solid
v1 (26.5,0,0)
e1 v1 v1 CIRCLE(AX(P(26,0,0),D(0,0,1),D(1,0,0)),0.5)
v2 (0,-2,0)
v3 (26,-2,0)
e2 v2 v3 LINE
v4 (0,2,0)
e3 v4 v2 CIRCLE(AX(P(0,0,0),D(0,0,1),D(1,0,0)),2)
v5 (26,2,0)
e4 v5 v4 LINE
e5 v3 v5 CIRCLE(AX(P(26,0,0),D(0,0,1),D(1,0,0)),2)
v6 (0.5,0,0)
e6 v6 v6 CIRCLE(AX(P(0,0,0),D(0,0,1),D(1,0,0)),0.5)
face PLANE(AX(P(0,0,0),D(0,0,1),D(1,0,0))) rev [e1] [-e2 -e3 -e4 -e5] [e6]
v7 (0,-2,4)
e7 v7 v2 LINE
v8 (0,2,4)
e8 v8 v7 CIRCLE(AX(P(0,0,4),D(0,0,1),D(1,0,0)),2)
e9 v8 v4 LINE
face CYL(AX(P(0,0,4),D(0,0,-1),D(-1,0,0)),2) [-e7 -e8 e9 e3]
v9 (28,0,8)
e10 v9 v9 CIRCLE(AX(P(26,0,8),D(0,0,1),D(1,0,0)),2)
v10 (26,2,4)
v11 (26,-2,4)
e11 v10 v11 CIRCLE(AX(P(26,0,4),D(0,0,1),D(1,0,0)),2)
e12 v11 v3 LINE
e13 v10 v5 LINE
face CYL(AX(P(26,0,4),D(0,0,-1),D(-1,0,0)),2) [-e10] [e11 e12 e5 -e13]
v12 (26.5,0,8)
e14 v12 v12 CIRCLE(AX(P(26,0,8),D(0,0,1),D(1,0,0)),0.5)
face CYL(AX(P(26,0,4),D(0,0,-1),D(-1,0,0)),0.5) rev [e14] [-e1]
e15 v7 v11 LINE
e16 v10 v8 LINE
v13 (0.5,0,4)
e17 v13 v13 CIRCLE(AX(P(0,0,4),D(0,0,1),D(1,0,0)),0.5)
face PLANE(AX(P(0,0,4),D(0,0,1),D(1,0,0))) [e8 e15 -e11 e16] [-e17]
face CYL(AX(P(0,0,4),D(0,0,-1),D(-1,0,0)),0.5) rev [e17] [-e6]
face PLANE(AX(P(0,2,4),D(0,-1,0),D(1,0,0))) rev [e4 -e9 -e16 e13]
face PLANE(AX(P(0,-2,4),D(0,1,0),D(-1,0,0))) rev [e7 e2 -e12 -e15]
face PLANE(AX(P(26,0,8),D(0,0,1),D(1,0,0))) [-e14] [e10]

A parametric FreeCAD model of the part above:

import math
import FreeCAD as App
import Part
import Sketcher
from FreeCAD import Vector

doc = App.newDocument("Part")
body = doc.addObject("PartDesign::Body", "Body")

sketch1 = doc.addObject("Sketcher::SketchObject", "Sketch")
body.addObject(sketch1)
sketch1.AttachmentSupport = (doc.XY_Plane, [""])
sketch1.MapMode = "FlatFace"
sketch1.addGeometry([
    Part.LineSegment(Vector(26, 2, 0), Vector(0, 2, 0)),
    Part.ArcOfCircle(Part.Circle(Vector(0, 0, 0), Vector(0, 0, 1), 2), math.radians(90), math.radians(270)),
    Part.LineSegment(Vector(0, -2, 0), Vector(26, -2, 0)),
    Part.ArcOfCircle(Part.Circle(Vector(26, 0, 0), Vector(0, 0, 1), 2), math.radians(-90), math.radians(90)),
    Part.Circle(Vector(26, 0, 0), Vector(0, 0, 1), 0.5),
    Part.Circle(Vector(0, 0, 0), Vector(0, 0, 1), 0.5),
], False)
sketch1.addConstraint([
    Sketcher.Constraint("Tangent", 0, 2, 1, 1),
    Sketcher.Constraint("Tangent", 1, 2, 2, 1),
    Sketcher.Constraint("Tangent", 2, 2, 3, 1),
    Sketcher.Constraint("Tangent", 3, 2, 0, 1),
    Sketcher.Constraint("Horizontal", 0),
    Sketcher.Constraint("Horizontal", 2),
    Sketcher.Constraint("Coincident", 1, 3, -1, 1),
    Sketcher.Constraint("Coincident", 5, 3, -1, 1),
    Sketcher.Constraint("Coincident", 4, 3, 3, 3),
    Sketcher.Constraint("Equal", 4, 5),
    Sketcher.Constraint("Diameter", 4, 1.0),
    Sketcher.Constraint("Radius", 1, 2.0),
    Sketcher.Constraint("DistanceX", 0, 2, 0, 1, 26.0),
])
pad1 = doc.addObject("PartDesign::Pad", "Pad")
body.addObject(pad1)
pad1.Profile = sketch1
pad1.Length = 4

sketch2 = doc.addObject("Sketcher::SketchObject", "Sketch001")
body.addObject(sketch2)
sketch2.AttachmentSupport = (doc.XY_Plane, [""])
sketch2.MapMode = "FlatFace"
sketch2.AttachmentOffset = App.Placement(Vector(0, 0, 4), App.Rotation())
sketch2.addGeometry([
    Part.Circle(Vector(26, 0, 0), Vector(0, 0, 1), 2),
    Part.Circle(Vector(26, 0, 0), Vector(0, 0, 1), 0.5),
], False)
sketch2.addConstraint([
    Sketcher.Constraint("Coincident", 1, 3, 0, 3),
    Sketcher.Constraint("PointOnObject", 0, 3, -1),
    Sketcher.Constraint("Diameter", 0, 4.0),
    Sketcher.Constraint("Diameter", 1, 1.0),
    Sketcher.Constraint("DistanceX", -1, 1, 0, 3, 26.0),
])
pad2 = doc.addObject("PartDesign::Pad", "Pad001")
body.addObject(pad2)
pad2.Profile = sketch2
pad2.Length = 4

doc.recompute()
